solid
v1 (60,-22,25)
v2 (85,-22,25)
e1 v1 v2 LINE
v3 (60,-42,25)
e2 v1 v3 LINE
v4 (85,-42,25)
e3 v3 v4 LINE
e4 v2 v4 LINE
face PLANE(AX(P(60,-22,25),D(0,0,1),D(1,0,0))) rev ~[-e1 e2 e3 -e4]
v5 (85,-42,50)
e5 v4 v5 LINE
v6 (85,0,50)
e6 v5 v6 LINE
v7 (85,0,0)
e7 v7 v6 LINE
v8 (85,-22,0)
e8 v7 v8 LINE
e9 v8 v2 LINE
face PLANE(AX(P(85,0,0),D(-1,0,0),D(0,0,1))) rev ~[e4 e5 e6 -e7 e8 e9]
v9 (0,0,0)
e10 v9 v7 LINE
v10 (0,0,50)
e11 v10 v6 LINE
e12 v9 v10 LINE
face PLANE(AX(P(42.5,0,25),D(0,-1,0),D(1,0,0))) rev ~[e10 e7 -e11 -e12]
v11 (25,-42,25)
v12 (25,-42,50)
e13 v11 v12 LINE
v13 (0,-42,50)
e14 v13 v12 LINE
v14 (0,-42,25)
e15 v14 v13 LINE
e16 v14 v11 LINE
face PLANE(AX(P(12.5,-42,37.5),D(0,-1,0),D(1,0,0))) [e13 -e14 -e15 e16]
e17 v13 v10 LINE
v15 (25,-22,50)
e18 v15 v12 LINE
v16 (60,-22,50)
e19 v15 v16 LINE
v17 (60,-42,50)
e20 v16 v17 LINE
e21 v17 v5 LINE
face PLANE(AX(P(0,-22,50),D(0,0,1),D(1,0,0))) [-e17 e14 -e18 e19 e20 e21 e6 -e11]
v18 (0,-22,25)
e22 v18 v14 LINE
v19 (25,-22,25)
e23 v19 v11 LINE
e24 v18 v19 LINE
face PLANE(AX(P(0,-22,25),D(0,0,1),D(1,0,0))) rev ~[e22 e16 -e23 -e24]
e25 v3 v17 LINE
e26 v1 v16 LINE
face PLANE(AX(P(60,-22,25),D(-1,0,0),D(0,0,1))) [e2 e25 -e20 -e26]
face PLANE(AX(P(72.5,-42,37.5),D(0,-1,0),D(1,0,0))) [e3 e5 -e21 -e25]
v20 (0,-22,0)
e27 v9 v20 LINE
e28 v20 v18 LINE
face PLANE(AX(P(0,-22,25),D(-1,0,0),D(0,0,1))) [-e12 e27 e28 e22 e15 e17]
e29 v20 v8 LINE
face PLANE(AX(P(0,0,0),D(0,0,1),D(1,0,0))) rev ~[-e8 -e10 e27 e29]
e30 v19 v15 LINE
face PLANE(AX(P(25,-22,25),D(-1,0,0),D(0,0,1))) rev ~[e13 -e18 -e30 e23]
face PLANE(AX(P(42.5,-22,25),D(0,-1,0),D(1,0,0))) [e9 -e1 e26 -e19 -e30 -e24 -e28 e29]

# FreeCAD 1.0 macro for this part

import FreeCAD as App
import Part
import Sketcher

doc = App.newDocument("Part")
body = doc.addObject("PartDesign::Body", "Body")

# Sketch on XZ plane
sketch1 = body.newObject("Sketcher::SketchObject", "Sketch")
sketch1.AttachmentSupport = (doc.getObject("XZ_Plane"), [""])
sketch1.MapMode = "FlatFace"
sketch1.addGeometry([
    Part.LineSegment(App.Vector(0, 50, 0), App.Vector(0, 0, 0)),
    Part.LineSegment(App.Vector(0, 0, 0), App.Vector(85, 0, 0)),
    Part.LineSegment(App.Vector(85, 0, 0), App.Vector(85, 50, 0)),
    Part.LineSegment(App.Vector(85, 50, 0), App.Vector(0, 50, 0)),
], False)
sketch1.addConstraint([
    Sketcher.Constraint("Coincident", 0, 2, 1, 1),
    Sketcher.Constraint("Coincident", 1, 2, 2, 1),
    Sketcher.Constraint("Coincident", 2, 2, 3, 1),
    Sketcher.Constraint("Coincident", 3, 2, 0, 1),
    Sketcher.Constraint("Vertical", 0),
    Sketcher.Constraint("Horizontal", 1),
    Sketcher.Constraint("Vertical", 2),
    Sketcher.Constraint("Horizontal", 3),
    Sketcher.Constraint("Coincident", 0, 2, -1, 1),
    Sketcher.Constraint("DistanceX", 1, 1, 1, 2, 85.0),
    Sketcher.Constraint("DistanceY", 0, 2, 0, 1, 50.0),
])
pad1 = body.newObject("PartDesign::Pad", "Pad")
pad1.Profile = sketch1
pad1.Length = 22

# Sketch on XZ plane
sketch2 = body.newObject("Sketcher::SketchObject", "Sketch001")
sketch2.AttachmentSupport = (doc.getObject("XZ_Plane"), [""])
sketch2.MapMode = "FlatFace"
sketch2.AttachmentOffset = App.Placement(App.Vector(0, 0, 22), App.Rotation())
sketch2.addGeometry([
    Part.LineSegment(App.Vector(0, 50, 0), App.Vector(0, 25, 0)),  # 0
    Part.LineSegment(App.Vector(0, 25, 0), App.Vector(25, 25, 0)),  # 1
    Part.LineSegment(App.Vector(25, 25, 0), App.Vector(25, 50, 0)),  # 2
    Part.LineSegment(App.Vector(25, 50, 0), App.Vector(0, 50, 0)),  # 3
    Part.LineSegment(App.Vector(60, 50, 0), App.Vector(60, 25, 0)),  # 4
    Part.LineSegment(App.Vector(60, 25, 0), App.Vector(85, 25, 0)),  # 5
    Part.LineSegment(App.Vector(85, 25, 0), App.Vector(85, 50, 0)),  # 6
    Part.LineSegment(App.Vector(85, 50, 0), App.Vector(60, 50, 0)),  # 7
], False)
sketch2.addConstraint([
    Sketcher.Constraint("Coincident", 0, 2, 1, 1),
    Sketcher.Constraint("Coincident", 1, 2, 2, 1),
    Sketcher.Constraint("Coincident", 2, 2, 3, 1),
    Sketcher.Constraint("Coincident", 3, 2, 0, 1),
    Sketcher.Constraint("Coincident", 4, 2, 5, 1),
    Sketcher.Constraint("Coincident", 5, 2, 6, 1),
    Sketcher.Constraint("Coincident", 6, 2, 7, 1),
    Sketcher.Constraint("Coincident", 7, 2, 4, 1),
    Sketcher.Constraint("Vertical", 0),
    Sketcher.Constraint("Horizontal", 1),
    Sketcher.Constraint("Vertical", 2),
    Sketcher.Constraint("Horizontal", 3),
    Sketcher.Constraint("Vertical", 4),
    Sketcher.Constraint("Horizontal", 5),
    Sketcher.Constraint("Vertical", 6),
    Sketcher.Constraint("Horizontal", 7),
    Sketcher.Constraint("PointOnObject", 0, 2, -2),
    Sketcher.Constraint("Horizontal", 1, 2, 4, 2),
    Sketcher.Constraint("Horizontal", 3, 2, 6, 2),
    Sketcher.Constraint("Equal", 3, 5),
    Sketcher.Constraint("Equal", 7, 0),
    Sketcher.Constraint("DistanceX", 1, 1, 1, 2, 25.0),
    Sketcher.Constraint("DistanceY", -1, 1, 0, 2, 25.0),
    Sketcher.Constraint("DistanceX", -1, 1, 4, 2, 60.0),
])
pad2 = body.newObject("PartDesign::Pad", "Pad001")
pad2.Profile = sketch2
pad2.Length = 20

doc.recompute()
